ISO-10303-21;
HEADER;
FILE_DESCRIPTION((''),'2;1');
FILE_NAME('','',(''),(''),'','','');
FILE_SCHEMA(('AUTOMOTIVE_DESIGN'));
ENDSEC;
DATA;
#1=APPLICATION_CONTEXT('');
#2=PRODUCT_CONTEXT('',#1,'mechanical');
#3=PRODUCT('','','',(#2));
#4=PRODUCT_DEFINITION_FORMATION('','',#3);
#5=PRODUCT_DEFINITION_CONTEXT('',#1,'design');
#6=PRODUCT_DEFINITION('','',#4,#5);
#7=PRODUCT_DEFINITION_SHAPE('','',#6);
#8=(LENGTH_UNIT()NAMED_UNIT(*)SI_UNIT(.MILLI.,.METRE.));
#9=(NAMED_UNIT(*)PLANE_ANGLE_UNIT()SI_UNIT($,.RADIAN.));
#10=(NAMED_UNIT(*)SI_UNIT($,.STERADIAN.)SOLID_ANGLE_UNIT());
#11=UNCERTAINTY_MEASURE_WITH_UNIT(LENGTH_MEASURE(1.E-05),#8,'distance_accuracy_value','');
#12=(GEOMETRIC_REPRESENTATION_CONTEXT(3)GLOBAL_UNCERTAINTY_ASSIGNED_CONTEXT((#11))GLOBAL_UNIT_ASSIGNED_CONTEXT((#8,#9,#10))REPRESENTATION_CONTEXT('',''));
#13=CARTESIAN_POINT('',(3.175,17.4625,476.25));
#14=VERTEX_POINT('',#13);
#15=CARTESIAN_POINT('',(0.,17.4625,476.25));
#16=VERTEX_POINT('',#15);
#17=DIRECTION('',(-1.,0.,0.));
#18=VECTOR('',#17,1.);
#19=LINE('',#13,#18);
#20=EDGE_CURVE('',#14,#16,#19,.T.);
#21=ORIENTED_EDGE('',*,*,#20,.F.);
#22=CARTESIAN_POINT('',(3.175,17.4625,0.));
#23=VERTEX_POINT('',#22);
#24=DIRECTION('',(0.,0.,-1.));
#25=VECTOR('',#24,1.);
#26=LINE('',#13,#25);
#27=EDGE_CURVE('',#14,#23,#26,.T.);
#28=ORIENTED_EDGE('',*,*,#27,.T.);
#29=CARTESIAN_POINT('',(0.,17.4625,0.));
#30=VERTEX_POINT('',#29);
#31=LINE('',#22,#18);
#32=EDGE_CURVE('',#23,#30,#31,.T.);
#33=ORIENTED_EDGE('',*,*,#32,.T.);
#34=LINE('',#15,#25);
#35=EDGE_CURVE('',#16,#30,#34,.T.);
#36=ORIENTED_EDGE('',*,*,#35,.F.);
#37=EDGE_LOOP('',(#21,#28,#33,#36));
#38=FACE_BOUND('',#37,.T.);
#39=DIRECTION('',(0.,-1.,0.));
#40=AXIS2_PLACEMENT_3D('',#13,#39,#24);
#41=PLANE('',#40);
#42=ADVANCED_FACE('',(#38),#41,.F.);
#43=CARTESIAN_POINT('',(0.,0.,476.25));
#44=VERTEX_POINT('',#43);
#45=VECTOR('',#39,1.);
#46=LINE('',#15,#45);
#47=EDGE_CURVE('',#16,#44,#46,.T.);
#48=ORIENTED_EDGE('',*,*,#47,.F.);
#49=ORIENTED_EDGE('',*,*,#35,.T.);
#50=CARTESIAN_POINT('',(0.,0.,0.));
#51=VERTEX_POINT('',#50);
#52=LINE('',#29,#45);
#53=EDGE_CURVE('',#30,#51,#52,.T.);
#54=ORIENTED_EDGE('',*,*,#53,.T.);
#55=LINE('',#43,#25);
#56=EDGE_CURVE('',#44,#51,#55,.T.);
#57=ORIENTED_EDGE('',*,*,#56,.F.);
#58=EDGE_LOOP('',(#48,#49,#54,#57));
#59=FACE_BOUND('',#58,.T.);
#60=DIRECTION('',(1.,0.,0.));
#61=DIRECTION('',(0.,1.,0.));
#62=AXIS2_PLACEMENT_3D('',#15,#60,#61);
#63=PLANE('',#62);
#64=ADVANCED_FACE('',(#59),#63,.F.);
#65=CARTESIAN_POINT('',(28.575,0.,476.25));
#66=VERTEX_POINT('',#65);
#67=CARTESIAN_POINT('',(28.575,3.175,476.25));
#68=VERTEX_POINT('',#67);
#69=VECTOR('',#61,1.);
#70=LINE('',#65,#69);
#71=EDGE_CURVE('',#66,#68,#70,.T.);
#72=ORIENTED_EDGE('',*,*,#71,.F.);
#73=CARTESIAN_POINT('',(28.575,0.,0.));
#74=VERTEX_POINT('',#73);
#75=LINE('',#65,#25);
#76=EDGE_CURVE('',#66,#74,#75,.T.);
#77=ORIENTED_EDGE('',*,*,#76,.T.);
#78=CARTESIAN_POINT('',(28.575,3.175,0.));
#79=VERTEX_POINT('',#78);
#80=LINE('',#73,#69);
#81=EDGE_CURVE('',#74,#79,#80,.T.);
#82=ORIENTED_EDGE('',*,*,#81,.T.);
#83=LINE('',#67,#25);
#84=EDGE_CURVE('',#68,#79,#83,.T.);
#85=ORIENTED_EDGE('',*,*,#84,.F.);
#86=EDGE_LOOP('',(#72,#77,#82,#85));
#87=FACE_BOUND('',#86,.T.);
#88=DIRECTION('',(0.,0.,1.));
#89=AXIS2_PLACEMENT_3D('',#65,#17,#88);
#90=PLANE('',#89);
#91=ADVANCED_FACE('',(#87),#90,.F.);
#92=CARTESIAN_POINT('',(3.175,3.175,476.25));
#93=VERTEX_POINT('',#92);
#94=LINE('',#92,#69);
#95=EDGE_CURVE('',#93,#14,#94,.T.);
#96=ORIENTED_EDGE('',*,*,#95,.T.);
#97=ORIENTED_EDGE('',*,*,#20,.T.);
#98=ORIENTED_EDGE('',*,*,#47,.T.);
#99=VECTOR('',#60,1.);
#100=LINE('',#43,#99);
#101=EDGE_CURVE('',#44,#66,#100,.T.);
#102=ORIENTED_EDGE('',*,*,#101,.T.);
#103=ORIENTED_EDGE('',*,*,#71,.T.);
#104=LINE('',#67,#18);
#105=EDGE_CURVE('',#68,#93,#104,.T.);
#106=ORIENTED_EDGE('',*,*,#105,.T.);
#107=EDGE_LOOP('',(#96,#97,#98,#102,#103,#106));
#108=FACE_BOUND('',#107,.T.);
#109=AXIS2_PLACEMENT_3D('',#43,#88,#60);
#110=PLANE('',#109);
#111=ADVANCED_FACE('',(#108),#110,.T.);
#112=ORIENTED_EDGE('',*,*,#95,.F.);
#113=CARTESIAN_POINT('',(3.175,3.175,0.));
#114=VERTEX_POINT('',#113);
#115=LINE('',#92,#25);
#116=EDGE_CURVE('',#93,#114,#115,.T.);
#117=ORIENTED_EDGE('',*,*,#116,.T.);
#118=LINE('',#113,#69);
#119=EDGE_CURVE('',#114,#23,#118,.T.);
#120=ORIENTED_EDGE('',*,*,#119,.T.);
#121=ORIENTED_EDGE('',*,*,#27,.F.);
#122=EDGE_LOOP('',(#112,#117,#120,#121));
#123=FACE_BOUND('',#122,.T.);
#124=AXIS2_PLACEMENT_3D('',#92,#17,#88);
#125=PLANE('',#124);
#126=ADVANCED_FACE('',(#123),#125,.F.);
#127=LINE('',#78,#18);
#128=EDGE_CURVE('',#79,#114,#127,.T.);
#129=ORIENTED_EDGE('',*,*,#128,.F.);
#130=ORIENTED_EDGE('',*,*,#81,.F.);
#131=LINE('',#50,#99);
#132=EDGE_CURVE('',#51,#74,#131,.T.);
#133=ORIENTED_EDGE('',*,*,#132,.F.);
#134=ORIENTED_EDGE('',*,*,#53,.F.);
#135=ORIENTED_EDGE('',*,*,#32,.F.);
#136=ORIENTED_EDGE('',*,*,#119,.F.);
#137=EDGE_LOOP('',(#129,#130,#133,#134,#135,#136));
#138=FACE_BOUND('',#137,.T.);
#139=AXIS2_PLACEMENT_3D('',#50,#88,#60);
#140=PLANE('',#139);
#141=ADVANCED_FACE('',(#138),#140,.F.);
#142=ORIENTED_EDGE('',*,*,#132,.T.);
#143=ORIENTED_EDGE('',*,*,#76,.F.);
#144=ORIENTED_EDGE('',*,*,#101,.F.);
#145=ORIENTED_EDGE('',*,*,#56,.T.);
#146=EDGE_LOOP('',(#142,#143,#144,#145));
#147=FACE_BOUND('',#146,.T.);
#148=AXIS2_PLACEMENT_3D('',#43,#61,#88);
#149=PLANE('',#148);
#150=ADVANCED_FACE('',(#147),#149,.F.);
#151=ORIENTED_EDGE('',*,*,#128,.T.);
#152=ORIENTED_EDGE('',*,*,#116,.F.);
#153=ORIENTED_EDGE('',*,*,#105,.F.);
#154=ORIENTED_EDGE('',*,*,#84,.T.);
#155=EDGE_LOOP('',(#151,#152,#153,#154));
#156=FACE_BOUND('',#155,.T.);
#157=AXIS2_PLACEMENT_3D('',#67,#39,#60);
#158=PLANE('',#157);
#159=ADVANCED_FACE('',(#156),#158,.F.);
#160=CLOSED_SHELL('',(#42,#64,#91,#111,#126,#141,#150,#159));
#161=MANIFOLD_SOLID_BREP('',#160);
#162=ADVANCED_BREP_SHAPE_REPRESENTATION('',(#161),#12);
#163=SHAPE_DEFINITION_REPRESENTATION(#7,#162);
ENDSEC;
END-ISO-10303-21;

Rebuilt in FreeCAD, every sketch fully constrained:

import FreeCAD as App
import Part
import Sketcher
Q = App.Units.Quantity

doc = App.newDocument("Part")
body = doc.addObject("PartDesign::Body", "Body")

# Sketch on XY plane
sketch1 = body.newObject("Sketcher::SketchObject", "Sketch")
sketch1.AttachmentSupport = (doc.getObject("XY_Plane"), [""])
sketch1.MapMode = "FlatFace"
sketch1.addGeometry([
    Part.LineSegment(App.Vector(0, 17.4625, 0), App.Vector(0, 0, 0)),  # 0
    Part.LineSegment(App.Vector(0, 0, 0), App.Vector(28.575, 0, 0)),  # 1
    Part.LineSegment(App.Vector(28.575, 0, 0), App.Vector(28.575, 3.175, 0)),  # 2
    Part.LineSegment(App.Vector(28.575, 3.175, 0), App.Vector(3.175, 3.175, 0)),  # 3
    Part.LineSegment(App.Vector(3.175, 3.175, 0), App.Vector(3.175, 17.4625, 0)),  # 4
    Part.LineSegment(App.Vector(3.175, 17.4625, 0), App.Vector(0, 17.4625, 0)),  # 5
], False)
sketch1.addConstraint([
    Sketcher.Constraint("Coincident", 0, 2, 1, 1),
    Sketcher.Constraint("Coincident", 1, 2, 2, 1),
    Sketcher.Constraint("Coincident", 2, 2, 3, 1),
    Sketcher.Constraint("Coincident", 3, 2, 4, 1),
    Sketcher.Constraint("Coincident", 4, 2, 5, 1),
    Sketcher.Constraint("Coincident", 5, 2, 0, 1),
    Sketcher.Constraint("Vertical", 0),
    Sketcher.Constraint("Horizontal", 1),
    Sketcher.Constraint("Vertical", 2),
    Sketcher.Constraint("Horizontal", 3),
    Sketcher.Constraint("Vertical", 4),
    Sketcher.Constraint("Horizontal", 5),
    Sketcher.Constraint("Coincident", 0, 2, -1, 1),
    Sketcher.Constraint("Equal", 5, 2),
    Sketcher.Constraint("DistanceX", 3, 2, 3, 1, Q("1 in")),
    Sketcher.Constraint("DistanceX", 1, 1, 1, 2, Q("1.125 in")),
    Sketcher.Constraint("DistanceY", 0, 2, 0, 1, Q("0.6875 in")),
])
pad1 = body.newObject("PartDesign::Pad", "Pad")
pad1.Profile = sketch1
pad1.Length = Q("18.75 in")

doc.recompute()
